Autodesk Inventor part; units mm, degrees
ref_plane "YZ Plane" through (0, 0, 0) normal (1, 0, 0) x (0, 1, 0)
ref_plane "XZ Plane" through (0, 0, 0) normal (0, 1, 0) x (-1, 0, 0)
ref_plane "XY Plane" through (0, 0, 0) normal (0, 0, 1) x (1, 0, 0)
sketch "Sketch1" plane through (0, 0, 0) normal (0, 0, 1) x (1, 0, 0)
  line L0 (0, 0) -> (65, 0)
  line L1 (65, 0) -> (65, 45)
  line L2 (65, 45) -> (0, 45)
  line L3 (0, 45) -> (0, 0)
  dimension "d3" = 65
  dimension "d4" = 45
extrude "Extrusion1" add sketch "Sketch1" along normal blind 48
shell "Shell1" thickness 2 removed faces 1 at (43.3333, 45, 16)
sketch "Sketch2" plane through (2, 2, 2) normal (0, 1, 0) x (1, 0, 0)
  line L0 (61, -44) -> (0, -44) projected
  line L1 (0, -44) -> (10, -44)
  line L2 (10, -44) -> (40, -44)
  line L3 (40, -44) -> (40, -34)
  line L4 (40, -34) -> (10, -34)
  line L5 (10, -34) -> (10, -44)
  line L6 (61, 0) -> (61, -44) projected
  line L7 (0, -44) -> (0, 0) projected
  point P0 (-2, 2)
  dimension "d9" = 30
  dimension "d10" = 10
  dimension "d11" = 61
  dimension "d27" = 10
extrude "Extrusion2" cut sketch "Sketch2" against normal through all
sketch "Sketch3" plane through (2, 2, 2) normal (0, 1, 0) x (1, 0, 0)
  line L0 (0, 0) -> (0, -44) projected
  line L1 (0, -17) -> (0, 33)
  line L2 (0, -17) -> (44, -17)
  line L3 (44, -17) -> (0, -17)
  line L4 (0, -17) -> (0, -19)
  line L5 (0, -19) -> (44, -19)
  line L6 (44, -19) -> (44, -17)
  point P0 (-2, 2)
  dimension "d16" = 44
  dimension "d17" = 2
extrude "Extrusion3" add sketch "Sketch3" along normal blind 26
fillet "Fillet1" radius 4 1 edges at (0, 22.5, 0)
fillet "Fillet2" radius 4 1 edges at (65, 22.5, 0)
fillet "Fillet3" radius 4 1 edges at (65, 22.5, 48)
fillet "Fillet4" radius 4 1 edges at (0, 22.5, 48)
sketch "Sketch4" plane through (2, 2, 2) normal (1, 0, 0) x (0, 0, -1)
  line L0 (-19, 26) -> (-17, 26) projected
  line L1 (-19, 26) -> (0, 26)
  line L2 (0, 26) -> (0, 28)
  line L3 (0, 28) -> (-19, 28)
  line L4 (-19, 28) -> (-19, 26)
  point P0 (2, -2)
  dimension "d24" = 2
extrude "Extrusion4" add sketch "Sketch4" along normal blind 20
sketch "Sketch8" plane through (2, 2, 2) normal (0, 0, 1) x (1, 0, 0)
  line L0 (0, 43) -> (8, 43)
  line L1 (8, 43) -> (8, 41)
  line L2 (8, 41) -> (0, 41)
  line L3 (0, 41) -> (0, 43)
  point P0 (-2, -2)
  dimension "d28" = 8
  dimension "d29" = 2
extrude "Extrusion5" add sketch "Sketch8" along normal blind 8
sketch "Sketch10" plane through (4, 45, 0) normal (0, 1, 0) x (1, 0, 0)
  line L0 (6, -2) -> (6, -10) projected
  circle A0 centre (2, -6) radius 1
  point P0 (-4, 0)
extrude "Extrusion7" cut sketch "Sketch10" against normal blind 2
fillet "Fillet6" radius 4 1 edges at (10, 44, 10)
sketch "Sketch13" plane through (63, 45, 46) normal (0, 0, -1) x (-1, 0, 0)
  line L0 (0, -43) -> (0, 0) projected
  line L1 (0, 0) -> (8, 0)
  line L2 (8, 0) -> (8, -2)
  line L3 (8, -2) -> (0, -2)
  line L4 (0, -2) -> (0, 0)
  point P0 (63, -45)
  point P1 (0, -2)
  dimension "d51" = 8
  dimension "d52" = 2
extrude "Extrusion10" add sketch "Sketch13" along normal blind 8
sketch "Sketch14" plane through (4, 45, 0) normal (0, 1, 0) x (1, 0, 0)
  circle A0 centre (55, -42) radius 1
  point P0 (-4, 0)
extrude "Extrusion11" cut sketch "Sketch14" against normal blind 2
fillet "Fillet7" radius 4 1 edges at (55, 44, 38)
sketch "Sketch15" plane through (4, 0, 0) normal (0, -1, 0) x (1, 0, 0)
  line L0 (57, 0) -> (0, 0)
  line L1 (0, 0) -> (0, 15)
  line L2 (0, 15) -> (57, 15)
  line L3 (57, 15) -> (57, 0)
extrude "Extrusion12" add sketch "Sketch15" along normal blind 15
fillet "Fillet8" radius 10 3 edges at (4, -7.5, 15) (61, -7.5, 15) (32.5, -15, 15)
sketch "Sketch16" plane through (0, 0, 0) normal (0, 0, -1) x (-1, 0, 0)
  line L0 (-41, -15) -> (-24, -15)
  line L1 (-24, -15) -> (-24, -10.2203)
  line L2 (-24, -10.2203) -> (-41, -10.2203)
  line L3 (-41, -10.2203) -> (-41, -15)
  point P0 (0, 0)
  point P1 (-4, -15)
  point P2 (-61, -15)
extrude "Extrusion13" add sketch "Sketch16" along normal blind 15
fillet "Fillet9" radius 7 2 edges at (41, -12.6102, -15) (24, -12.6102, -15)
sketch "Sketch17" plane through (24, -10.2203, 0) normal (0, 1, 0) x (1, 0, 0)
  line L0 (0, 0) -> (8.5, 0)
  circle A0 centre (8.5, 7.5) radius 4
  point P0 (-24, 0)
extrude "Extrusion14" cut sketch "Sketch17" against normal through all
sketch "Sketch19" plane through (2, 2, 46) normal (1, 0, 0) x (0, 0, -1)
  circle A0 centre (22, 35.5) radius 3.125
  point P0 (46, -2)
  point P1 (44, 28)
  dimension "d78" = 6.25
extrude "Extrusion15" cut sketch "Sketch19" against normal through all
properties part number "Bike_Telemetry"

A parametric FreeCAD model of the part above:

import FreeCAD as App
import Part
import Sketcher
Q = App.Units.Quantity


def edges_at(feature, points):
    """Names of the edges that pass closest to the given points."""
    edges = feature.Shape.Edges
    near = lambda p: min(range(len(edges)), key=lambda i: edges[i].distToShape(Part.Vertex(*p))[0])
    return sorted({f"Edge{near(p) + 1}" for p in points})


def faces_at(feature, points):
    """Names of the faces that lie closest to the given points."""
    faces = feature.Shape.Faces
    near = lambda p: min(range(len(faces)), key=lambda i: faces[i].distToShape(Part.Vertex(*p))[0])
    return sorted({f"Face{near(p) + 1}" for p in points})

doc = App.newDocument("Part")
body = doc.addObject("PartDesign::Body", "Body")

sketch1 = body.newObject("Sketcher::SketchObject", "Sketch")
sketch1.AttachmentSupport = (doc.getObject("XY_Plane"), [""])
sketch1.MapMode = "FlatFace"
sketch1.addGeometry([
    Part.LineSegment(App.Vector(0, 45, 0), App.Vector(0, 0, 0)),
    Part.LineSegment(App.Vector(0, 0, 0), App.Vector(65, 0, 0)),
    Part.LineSegment(App.Vector(65, 0, 0), App.Vector(65, 45, 0)),
    Part.LineSegment(App.Vector(65, 45, 0), App.Vector(0, 45, 0)),
], False)
sketch1.addConstraint([
    Sketcher.Constraint("Coincident", 0, 2, 1, 1),
    Sketcher.Constraint("Coincident", 1, 2, 2, 1),
    Sketcher.Constraint("Coincident", 2, 2, 3, 1),
    Sketcher.Constraint("Coincident", 3, 2, 0, 1),
    Sketcher.Constraint("Vertical", 0),
    Sketcher.Constraint("Horizontal", 1),
    Sketcher.Constraint("Vertical", 2),
    Sketcher.Constraint("Horizontal", 3),
    Sketcher.Constraint("Coincident", 0, 2, -1, 1),
    Sketcher.Constraint("DistanceX", 1, 1, 1, 2, Q("65 mm")),
    Sketcher.Constraint("DistanceY", 0, 2, 0, 1, Q("45 mm")),
])
pad1 = body.newObject("PartDesign::Pad", "Pad")
pad1.Profile = sketch1
pad1.Length = 48
doc.recompute()

thickness = body.newObject("PartDesign::Thickness", "Thickness")
thickness.Base = (pad1, faces_at(pad1, [(43.333, 45, 16)]))
thickness.Value = 2
thickness.Reversed = True
thickness.Join = "Intersection"

sketch2 = body.newObject("Sketcher::SketchObject", "Sketch001")
sketch2.AttachmentSupport = (doc.getObject("XZ_Plane"), [""])
sketch2.MapMode = "FlatFace"
sketch2.AttachmentOffset = App.Placement(App.Vector(0, 0, -2), App.Rotation())
sketch2.addGeometry([
    Part.LineSegment(App.Vector(12, 46, 0), App.Vector(42, 46, 0)),
    Part.LineSegment(App.Vector(42, 46, 0), App.Vector(42, 36, 0)),
    Part.LineSegment(App.Vector(42, 36, 0), App.Vector(12, 36, 0)),
    Part.LineSegment(App.Vector(12, 36, 0), App.Vector(12, 46, 0)),
], False)
sketch2.addConstraint([
    Sketcher.Constraint("Coincident", 0, 2, 1, 1),
    Sketcher.Constraint("Coincident", 1, 2, 2, 1),
    Sketcher.Constraint("Coincident", 2, 2, 3, 1),
    Sketcher.Constraint("Coincident", 3, 2, 0, 1),
    Sketcher.Constraint("Horizontal", 0),
    Sketcher.Constraint("Vertical", 1),
    Sketcher.Constraint("Horizontal", 2),
    Sketcher.Constraint("Vertical", 3),
    Sketcher.Constraint("DistanceX", 0, 1, 0, 2, Q("30 mm")),
    Sketcher.Constraint("DistanceY", 1, 2, 1, 1, Q("10 mm")),
    Sketcher.Constraint("DistanceX", -1, 1, 0, 2, Q("42 mm")),
    Sketcher.Constraint("DistanceY", -1, 1, 0, 2, Q("46 mm")),
])
pocket1 = body.newObject("PartDesign::Pocket", "Pocket")
pocket1.Profile = sketch2
pocket1.Type = "ThroughAll"
pocket1.Reversed = True

sketch3 = body.newObject("Sketcher::SketchObject", "Sketch002")
sketch3.AttachmentSupport = (doc.getObject("XZ_Plane"), [""])
sketch3.MapMode = "FlatFace"
sketch3.AttachmentOffset = App.Placement(App.Vector(0, 0, -2), App.Rotation())
sketch3.addGeometry([
    Part.LineSegment(App.Vector(46, 19, 0), App.Vector(2, 19, 0)),
    Part.LineSegment(App.Vector(2, 19, 0), App.Vector(2, 21, 0)),
    Part.LineSegment(App.Vector(2, 21, 0), App.Vector(46, 21, 0)),
    Part.LineSegment(App.Vector(46, 21, 0), App.Vector(46, 19, 0)),
], False)
sketch3.addConstraint([
    Sketcher.Constraint("Coincident", 0, 2, 1, 1),
    Sketcher.Constraint("Coincident", 1, 2, 2, 1),
    Sketcher.Constraint("Coincident", 2, 2, 3, 1),
    Sketcher.Constraint("Coincident", 3, 2, 0, 1),
    Sketcher.Constraint("Horizontal", 0),
    Sketcher.Constraint("Vertical", 1),
    Sketcher.Constraint("Horizontal", 2),
    Sketcher.Constraint("Vertical", 3),
    Sketcher.Constraint("DistanceX", 0, 2, 0, 1, Q("44 mm")),
    Sketcher.Constraint("DistanceY", 1, 1, 1, 2, Q("2 mm")),
    Sketcher.Constraint("DistanceX", -1, 1, 0, 2, Q("2 mm")),
    Sketcher.Constraint("DistanceY", -1, 1, 0, 2, Q("19 mm")),
])
pad2 = body.newObject("PartDesign::Pad", "Pad001")
pad2.Profile = sketch3
pad2.Length = 26
pad2.Reversed = True
doc.recompute()

fillet = body.newObject("PartDesign::Fillet", "Fillet")
fillet.Base = (pad2, edges_at(pad2, [(0, 22.5, 0)]))
fillet.Radius = 4
doc.recompute()

fillet2 = body.newObject("PartDesign::Fillet", "Fillet001")
fillet2.Base = (fillet, edges_at(fillet, [(65, 22.5, 0)]))
fillet2.Radius = 4
doc.recompute()

fillet3 = body.newObject("PartDesign::Fillet", "Fillet002")
fillet3.Base = (fillet2, edges_at(fillet2, [(65, 22.5, 48)]))
fillet3.Radius = 4
doc.recompute()

fillet4 = body.newObject("PartDesign::Fillet", "Fillet003")
fillet4.Base = (fillet3, edges_at(fillet3, [(0, 22.5, 48)]))
fillet4.Radius = 4

sketch4 = body.newObject("Sketcher::SketchObject", "Sketch003")
sketch4.AttachmentSupport = (doc.getObject("YZ_Plane"), [""])
sketch4.MapMode = "FlatFace"
sketch4.AttachmentOffset = App.Placement(App.Vector(0, 0, 2), App.Rotation())
sketch4.addGeometry([
    Part.LineSegment(App.Vector(30, 21, 0), App.Vector(28, 21, 0)),
    Part.LineSegment(App.Vector(28, 21, 0), App.Vector(28, 2, 0)),
    Part.LineSegment(App.Vector(28, 2, 0), App.Vector(30, 2, 0)),
    Part.LineSegment(App.Vector(30, 2, 0), App.Vector(30, 21, 0)),
], False)
sketch4.addConstraint([
    Sketcher.Constraint("Coincident", 0, 2, 1, 1),
    Sketcher.Constraint("Coincident", 1, 2, 2, 1),
    Sketcher.Constraint("Coincident", 2, 2, 3, 1),
    Sketcher.Constraint("Coincident", 3, 2, 0, 1),
    Sketcher.Constraint("Horizontal", 0),
    Sketcher.Constraint("Vertical", 1),
    Sketcher.Constraint("Horizontal", 2),
    Sketcher.Constraint("Vertical", 3),
    Sketcher.Constraint("DistanceX", 0, 2, 0, 1, Q("2 mm")),
    Sketcher.Constraint("DistanceY", -1, 1, 1, 2, Q("2 mm")),
    Sketcher.Constraint("DistanceY", 1, 2, 1, 1, Q("19 mm")),
    Sketcher.Constraint("DistanceX", -1, 1, 0, 2, Q("28 mm")),
])
pad3 = body.newObject("PartDesign::Pad", "Pad002")
pad3.Profile = sketch4
pad3.Length = 20

sketch5 = body.newObject("Sketcher::SketchObject", "Sketch004")
sketch5.AttachmentSupport = (doc.getObject("XY_Plane"), [""])
sketch5.MapMode = "FlatFace"
sketch5.AttachmentOffset = App.Placement(App.Vector(0, 0, 2), App.Rotation())
sketch5.addGeometry([
    Part.LineSegment(App.Vector(10, 45, 0), App.Vector(2, 45, 0)),
    Part.LineSegment(App.Vector(2, 45, 0), App.Vector(2, 43, 0)),
    Part.LineSegment(App.Vector(2, 43, 0), App.Vector(10, 43, 0)),
    Part.LineSegment(App.Vector(10, 43, 0), App.Vector(10, 45, 0)),
], False)
sketch5.addConstraint([
    Sketcher.Constraint("Coincident", 0, 2, 1, 1),
    Sketcher.Constraint("Coincident", 1, 2, 2, 1),
    Sketcher.Constraint("Coincident", 2, 2, 3, 1),
    Sketcher.Constraint("Coincident", 3, 2, 0, 1),
    Sketcher.Constraint("Horizontal", 0),
    Sketcher.Constraint("Vertical", 1),
    Sketcher.Constraint("Horizontal", 2),
    Sketcher.Constraint("Vertical", 3),
    Sketcher.Constraint("DistanceX", 0, 2, 0, 1, Q("8 mm")),
    Sketcher.Constraint("DistanceY", 1, 2, 1, 1, Q("2 mm")),
    Sketcher.Constraint("DistanceX", -1, 1, 0, 2, Q("2 mm")),
    Sketcher.Constraint("DistanceY", -1, 1, 0, 2, Q("45 mm")),
])
pad4 = body.newObject("PartDesign::Pad", "Pad003")
pad4.Profile = sketch5
pad4.Length = 8

sketch6 = body.newObject("Sketcher::SketchObject", "Sketch005")
sketch6.AttachmentSupport = (doc.getObject("XZ_Plane"), [""])
sketch6.MapMode = "FlatFace"
sketch6.AttachmentOffset = App.Placement(App.Vector(0, 0, -45), App.Rotation())
sketch6.addGeometry(Part.Circle(App.Vector(6, 6, 0), App.Vector(0, 0, 1), 1), False)
sketch6.addConstraint([
    Sketcher.Constraint("Diameter", 0, Q("2 mm")),
    Sketcher.Constraint("DistanceX", -1, 1, 0, 3, Q("6 mm")),
    Sketcher.Constraint("DistanceY", -1, 1, 0, 3, Q("6 mm")),
])
pocket2 = body.newObject("PartDesign::Pocket", "Pocket001")
pocket2.Profile = sketch6
pocket2.Length = 2
pocket2.Reversed = True
doc.recompute()

fillet5 = body.newObject("PartDesign::Fillet", "Fillet004")
fillet5.Base = (pocket2, edges_at(pocket2, [(10, 44, 10)]))
fillet5.Radius = 4

sketch7 = body.newObject("Sketcher::SketchObject", "Sketch006")
sketch7.AttachmentSupport = (doc.getObject("XY_Plane"), [""])
sketch7.MapMode = "FlatFace"
sketch7.AttachmentOffset = App.Placement(App.Vector(0, 0, 46), App.Rotation())
sketch7.addGeometry([
    Part.LineSegment(App.Vector(63, 45, 0), App.Vector(63, 43, 0)),
    Part.LineSegment(App.Vector(63, 43, 0), App.Vector(55, 43, 0)),
    Part.LineSegment(App.Vector(55, 43, 0), App.Vector(55, 45, 0)),
    Part.LineSegment(App.Vector(55, 45, 0), App.Vector(63, 45, 0)),
], False)
sketch7.addConstraint([
    Sketcher.Constraint("Coincident", 0, 2, 1, 1),
    Sketcher.Constraint("Coincident", 1, 2, 2, 1),
    Sketcher.Constraint("Coincident", 2, 2, 3, 1),
    Sketcher.Constraint("Coincident", 3, 2, 0, 1),
    Sketcher.Constraint("Vertical", 0),
    Sketcher.Constraint("Horizontal", 1),
    Sketcher.Constraint("Vertical", 2),
    Sketcher.Constraint("Horizontal", 3),
    Sketcher.Constraint("DistanceX", 1, 2, 1, 1, Q("8 mm")),
    Sketcher.Constraint("DistanceY", 0, 2, 0, 1, Q("2 mm")),
    Sketcher.Constraint("DistanceX", -1, 1, 0, 2, Q("63 mm")),
    Sketcher.Constraint("DistanceY", -1, 1, 0, 2, Q("43 mm")),
])
pad5 = body.newObject("PartDesign::Pad", "Pad004")
pad5.Profile = sketch7
pad5.Length = 8
pad5.Reversed = True

sketch8 = body.newObject("Sketcher::SketchObject", "Sketch007")
sketch8.AttachmentSupport = (doc.getObject("XZ_Plane"), [""])
sketch8.MapMode = "FlatFace"
sketch8.AttachmentOffset = App.Placement(App.Vector(0, 0, -45), App.Rotation())
sketch8.addGeometry(Part.Circle(App.Vector(59, 42, 0), App.Vector(0, 0, 1), 1), False)
sketch8.addConstraint([
    Sketcher.Constraint("Diameter", 0, Q("2 mm")),
    Sketcher.Constraint("DistanceX", -1, 1, 0, 3, Q("59 mm")),
    Sketcher.Constraint("DistanceY", -1, 1, 0, 3, Q("42 mm")),
])
pocket3 = body.newObject("PartDesign::Pocket", "Pocket002")
pocket3.Profile = sketch8
pocket3.Length = 2
pocket3.Reversed = True
doc.recompute()

fillet6 = body.newObject("PartDesign::Fillet", "Fillet005")
fillet6.Base = (pocket3, edges_at(pocket3, [(55, 44, 38)]))
fillet6.Radius = 4

sketch9 = body.newObject("Sketcher::SketchObject", "Sketch008")
sketch9.AttachmentSupport = (doc.getObject("XZ_Plane"), [""])
sketch9.MapMode = "FlatFace"
sketch9.addGeometry([
    Part.LineSegment(App.Vector(4, 0, 0), App.Vector(61, 0, 0)),
    Part.LineSegment(App.Vector(61, 0, 0), App.Vector(61, 15, 0)),
    Part.LineSegment(App.Vector(61, 15, 0), App.Vector(4, 15, 0)),
    Part.LineSegment(App.Vector(4, 15, 0), App.Vector(4, 0, 0)),
], False)
sketch9.addConstraint([
    Sketcher.Constraint("Coincident", 0, 2, 1, 1),
    Sketcher.Constraint("Coincident", 1, 2, 2, 1),
    Sketcher.Constraint("Coincident", 2, 2, 3, 1),
    Sketcher.Constraint("Coincident", 3, 2, 0, 1),
    Sketcher.Constraint("Horizontal", 0),
    Sketcher.Constraint("Vertical", 1),
    Sketcher.Constraint("Horizontal", 2),
    Sketcher.Constraint("Vertical", 3),
    Sketcher.Constraint("PointOnObject", 0, 2, -1),
    Sketcher.Constraint("DistanceX", 0, 1, 0, 2, Q("57 mm")),
    Sketcher.Constraint("DistanceY", 1, 1, 1, 2, Q("15 mm")),
    Sketcher.Constraint("DistanceX", -1, 1, 0, 2, Q("61 mm")),
])
pad6 = body.newObject("PartDesign::Pad", "Pad005")
pad6.Profile = sketch9
pad6.Length = 15
doc.recompute()

fillet7 = body.newObject("PartDesign::Fillet", "Fillet006")
fillet7.Base = (pad6, edges_at(pad6, [(4, -7.5, 15), (61, -7.5, 15), (32.5, -15, 15)]))
fillet7.Radius = 10

sketch10 = body.newObject("Sketcher::SketchObject", "Sketch009")
sketch10.AttachmentSupport = (doc.getObject("XY_Plane"), [""])
sketch10.MapMode = "FlatFace"
sketch10.addGeometry([
    Part.LineSegment(App.Vector(41, -10.2, 0), App.Vector(41, -15, 0)),
    Part.LineSegment(App.Vector(41, -15, 0), App.Vector(24, -15, 0)),
    Part.LineSegment(App.Vector(24, -15, 0), App.Vector(24, -10.2, 0)),
    Part.LineSegment(App.Vector(24, -10.2, 0), App.Vector(41, -10.2, 0)),
], False)
sketch10.addConstraint([
    Sketcher.Constraint("Coincident", 0, 2, 1, 1),
    Sketcher.Constraint("Coincident", 1, 2, 2, 1),
    Sketcher.Constraint("Coincident", 2, 2, 3, 1),
    Sketcher.Constraint("Coincident", 3, 2, 0, 1),
    Sketcher.Constraint("Vertical", 0),
    Sketcher.Constraint("Horizontal", 1),
    Sketcher.Constraint("Vertical", 2),
    Sketcher.Constraint("Horizontal", 3),
    Sketcher.Constraint("DistanceX", 1, 2, 1, 1, Q("17 mm")),
    Sketcher.Constraint("DistanceX", -1, 1, 0, 2, Q("41 mm")),
    Sketcher.Constraint("DistanceY", 0, 2, -1, 1, Q("15 mm")),
    Sketcher.Constraint("DistanceY", 0, 2, 0, 1, Q("4.7797 mm")),
])
pad7 = body.newObject("PartDesign::Pad", "Pad006")
pad7.Profile = sketch10
pad7.Length = 15
pad7.Reversed = True
doc.recompute()

fillet8 = body.newObject("PartDesign::Fillet", "Fillet007")
fillet8.Base = (pad7, edges_at(pad7, [(41, -12.61, -15), (24, -12.61, -15)]))
fillet8.Radius = 7

sketch11 = body.newObject("Sketcher::SketchObject", "Sketch010")
sketch11.AttachmentSupport = (doc.getObject("XZ_Plane"), [""])
sketch11.MapMode = "FlatFace"
sketch11.AttachmentOffset = App.Placement(App.Vector(0, 0, 10.2203), App.Rotation())
sketch11.addGeometry(Part.Circle(App.Vector(32.5, -7.5, 0), App.Vector(0, 0, 1), 4), False)
sketch11.addConstraint([
    Sketcher.Constraint("Diameter", 0, Q("8 mm")),
    Sketcher.Constraint("DistanceX", -1, 1, 0, 3, Q("32.5 mm")),
    Sketcher.Constraint("DistanceY", 0, 3, -1, 1, Q("7.5 mm")),
])
pocket4 = body.newObject("PartDesign::Pocket", "Pocket003")
pocket4.Profile = sketch11
pocket4.Type = "ThroughAll"
pocket4.Reversed = True

sketch12 = body.newObject("Sketcher::SketchObject", "Sketch011")
sketch12.AttachmentSupport = (doc.getObject("YZ_Plane"), [""])
sketch12.MapMode = "FlatFace"
sketch12.AttachmentOffset = App.Placement(App.Vector(0, 0, 2), App.Rotation())
sketch12.addGeometry(Part.Circle(App.Vector(37.5, 24, 0), App.Vector(0, 0, 1), 3.1), False)
sketch12.addConstraint([
    Sketcher.Constraint("Diameter", 0, Q("6.25 mm")),
    Sketcher.Constraint("DistanceY", -1, 1, 0, 3, Q("24 mm")),
    Sketcher.Constraint("DistanceX", -1, 1, 0, 3, Q("37.5 mm")),
])
pocket5 = body.newObject("PartDesign::Pocket", "Pocket004")
pocket5.Profile = sketch12
pocket5.Type = "ThroughAll"

doc.recompute()
